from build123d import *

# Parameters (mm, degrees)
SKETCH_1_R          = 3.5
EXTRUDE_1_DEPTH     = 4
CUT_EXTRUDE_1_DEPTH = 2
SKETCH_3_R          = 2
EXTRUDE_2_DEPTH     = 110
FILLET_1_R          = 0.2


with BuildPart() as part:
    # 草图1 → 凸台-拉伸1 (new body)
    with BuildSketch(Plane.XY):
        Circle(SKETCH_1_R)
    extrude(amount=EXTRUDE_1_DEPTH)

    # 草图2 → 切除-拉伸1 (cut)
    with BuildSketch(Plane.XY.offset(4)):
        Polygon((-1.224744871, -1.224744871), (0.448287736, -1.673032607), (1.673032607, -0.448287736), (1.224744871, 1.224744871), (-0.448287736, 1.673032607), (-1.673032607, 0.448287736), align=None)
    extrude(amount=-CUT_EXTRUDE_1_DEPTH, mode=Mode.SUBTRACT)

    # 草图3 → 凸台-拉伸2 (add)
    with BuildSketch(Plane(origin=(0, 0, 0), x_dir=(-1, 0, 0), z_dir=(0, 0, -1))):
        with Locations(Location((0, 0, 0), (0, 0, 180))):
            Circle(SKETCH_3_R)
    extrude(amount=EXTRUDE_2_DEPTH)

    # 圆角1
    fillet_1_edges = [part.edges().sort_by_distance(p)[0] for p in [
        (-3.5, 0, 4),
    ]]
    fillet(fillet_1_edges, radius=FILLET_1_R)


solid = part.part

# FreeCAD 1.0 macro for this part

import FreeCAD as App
import Part
import Sketcher

V = App.Vector
Q = App.Units.Quantity


def edges_at(feature, points):
    """Names of the edges that pass closest to the given points."""
    edges = feature.Shape.Edges
    near = lambda p: min(range(len(edges)), key=lambda i: edges[i].distToShape(Part.Vertex(*p))[0])
    return sorted({f"Edge{near(p) + 1}" for p in points})

doc = App.newDocument("Part")
body = doc.addObject("PartDesign::Body", "Body")

# Sketch on XY plane
sketch1 = doc.addObject("Sketcher::SketchObject", "Sketch")
body.addObject(sketch1)
sketch1.AttachmentSupport = (doc.XY_Plane, [""])
sketch1.MapMode = "FlatFace"
sketch1.addGeometry(Part.Circle(V(0, 0, 0), V(0, 0, 1), 3.5), False)
sketch1.addConstraint([
    Sketcher.Constraint("Coincident", 0, 3, -1, 1),
    Sketcher.Constraint("Diameter", 0, 7.0),
])
pad1 = doc.addObject("PartDesign::Pad", "Pad")
body.addObject(pad1)
pad1.Profile = sketch1
pad1.Length = 4

# Sketch on XY plane
sketch2 = doc.addObject("Sketcher::SketchObject", "Sketch001")
body.addObject(sketch2)
sketch2.AttachmentSupport = (doc.XY_Plane, [""])
sketch2.MapMode = "FlatFace"
sketch2.AttachmentOffset = App.Placement(V(0, 0, 4), App.Rotation())
sketch2.addGeometry([
    Part.LineSegment(V(-1.2, -1.2, 0), V(0.4, -1.7, 0)),  # 0
    Part.LineSegment(V(0.4, -1.7, 0), V(1.7, -0.4, 0)),  # 1
    Part.LineSegment(V(1.7, -0.4, 0), V(1.2, 1.2, 0)),  # 2
    Part.LineSegment(V(1.2, 1.2, 0), V(-0.4, 1.7, 0)),  # 3
    Part.LineSegment(V(-0.4, 1.7, 0), V(-1.7, 0.4, 0)),  # 4
    Part.LineSegment(V(-1.7, 0.4, 0), V(-1.2, -1.2, 0)),  # 5
], False)
sketch2.addConstraint([
    Sketcher.Constraint("Coincident", 0, 2, 1, 1),
    Sketcher.Constraint("Coincident", 1, 2, 2, 1),
    Sketcher.Constraint("Coincident", 2, 2, 3, 1),
    Sketcher.Constraint("Coincident", 3, 2, 4, 1),
    Sketcher.Constraint("Coincident", 4, 2, 5, 1),
    Sketcher.Constraint("Coincident", 5, 2, 0, 1),
    Sketcher.Constraint("Symmetric", 0, 2, 3, 2, -1, 1),
    Sketcher.Constraint("Symmetric", 1, 2, 4, 2, -1, 1),
    Sketcher.Constraint("Symmetric", 2, 2, 5, 2, -1, 1),
    Sketcher.Constraint("Equal", 0, 1),
    Sketcher.Constraint("Equal", 1, 2),
    Sketcher.Constraint("Angle", 0, Q("-15 deg")),
    Sketcher.Constraint("Angle", 1, Q("45 deg")),
    Sketcher.Constraint("Angle", 2, Q("105 deg")),
    Sketcher.Constraint("Distance", 0, 1.732051),
])
pocket1 = doc.addObject("PartDesign::Pocket", "Pocket")
body.addObject(pocket1)
pocket1.Profile = sketch2
pocket1.Length = 2

# Sketch on XY plane
sketch3 = doc.addObject("Sketcher::SketchObject", "Sketch002")
body.addObject(sketch3)
sketch3.AttachmentSupport = (doc.XY_Plane, [""])
sketch3.MapMode = "FlatFace"
sketch3.addGeometry(Part.Circle(V(0, 0, 0), V(0, 0, 1), 2), False)
sketch3.addConstraint([
    Sketcher.Constraint("Coincident", 0, 3, -1, 1),
    Sketcher.Constraint("Diameter", 0, 4.0),
])
pad2 = doc.addObject("PartDesign::Pad", "Pad001")
body.addObject(pad2)
pad2.Profile = sketch3
pad2.Length = 110
pad2.Reversed = True
doc.recompute()

fillet = doc.addObject("PartDesign::Fillet", "Fillet")
body.addObject(fillet)
fillet.Base = (pad2, edges_at(pad2, [(-3.5, 0, 4)]))
fillet.Radius = 0.2

doc.recompute()
